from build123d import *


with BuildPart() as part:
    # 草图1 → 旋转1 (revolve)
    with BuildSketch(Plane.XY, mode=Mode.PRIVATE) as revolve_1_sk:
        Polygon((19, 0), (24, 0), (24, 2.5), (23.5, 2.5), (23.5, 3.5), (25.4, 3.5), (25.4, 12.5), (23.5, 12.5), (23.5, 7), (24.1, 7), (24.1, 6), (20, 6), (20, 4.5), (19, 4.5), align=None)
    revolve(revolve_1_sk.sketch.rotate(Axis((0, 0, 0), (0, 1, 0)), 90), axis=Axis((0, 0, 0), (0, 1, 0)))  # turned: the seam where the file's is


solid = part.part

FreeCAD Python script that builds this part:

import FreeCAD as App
import Part
import Sketcher

V = App.Vector
Q = App.Units.Quantity

doc = App.newDocument("Part")
body = doc.addObject("PartDesign::Body", "Body")

sketch1 = body.newObject("Sketcher::SketchObject", "Sketch")
sketch1.AttachmentSupport = (doc.getObject("XY_Plane"), [""])
sketch1.MapMode = "FlatFace"
sketch1.addGeometry([
    Part.LineSegment(V(19, 0, 0), V(24, 0, 0)),
    Part.LineSegment(V(24, 0, 0), V(24, 2.5, 0)),
    Part.LineSegment(V(24, 2.5, 0), V(23.5, 2.5, 0)),
    Part.LineSegment(V(23.5, 2.5, 0), V(23.5, 3.5, 0)),
    Part.LineSegment(V(23.5, 3.5, 0), V(25.4, 3.5, 0)),
    Part.LineSegment(V(25.4, 3.5, 0), V(25.4, 12.5, 0)),
    Part.LineSegment(V(25.4, 12.5, 0), V(23.5, 12.5, 0)),
    Part.LineSegment(V(23.5, 12.5, 0), V(23.5, 7, 0)),
    Part.LineSegment(V(23.5, 7, 0), V(24.1, 7, 0)),
    Part.LineSegment(V(24.1, 7, 0), V(24.1, 6, 0)),
    Part.LineSegment(V(24.1, 6, 0), V(20, 6, 0)),
    Part.LineSegment(V(20, 6, 0), V(20, 4.5, 0)),
    Part.LineSegment(V(20, 4.5, 0), V(19, 4.5, 0)),
    Part.LineSegment(V(19, 4.5, 0), V(19, 0, 0)),
], False)
sketch1.addConstraint([
    Sketcher.Constraint("Coincident", 0, 2, 1, 1),
    Sketcher.Constraint("Coincident", 1, 2, 2, 1),
    Sketcher.Constraint("Coincident", 2, 2, 3, 1),
    Sketcher.Constraint("Coincident", 3, 2, 4, 1),
    Sketcher.Constraint("Coincident", 4, 2, 5, 1),
    Sketcher.Constraint("Coincident", 5, 2, 6, 1),
    Sketcher.Constraint("Coincident", 6, 2, 7, 1),
    Sketcher.Constraint("Coincident", 7, 2, 8, 1),
    Sketcher.Constraint("Coincident", 8, 2, 9, 1),
    Sketcher.Constraint("Coincident", 9, 2, 10, 1),
    Sketcher.Constraint("Coincident", 10, 2, 11, 1),
    Sketcher.Constraint("Coincident", 11, 2, 12, 1),
    Sketcher.Constraint("Coincident", 12, 2, 13, 1),
    Sketcher.Constraint("Coincident", 13, 2, 0, 1),
    Sketcher.Constraint("Horizontal", 0),
    Sketcher.Constraint("Vertical", 1),
    Sketcher.Constraint("Horizontal", 2),
    Sketcher.Constraint("Vertical", 3),
    Sketcher.Constraint("Horizontal", 4),
    Sketcher.Constraint("Vertical", 5),
    Sketcher.Constraint("Horizontal", 6),
    Sketcher.Constraint("Vertical", 7),
    Sketcher.Constraint("Horizontal", 8),
    Sketcher.Constraint("Vertical", 9),
    Sketcher.Constraint("Horizontal", 10),
    Sketcher.Constraint("Vertical", 11),
    Sketcher.Constraint("Horizontal", 12),
    Sketcher.Constraint("Vertical", 13),
    Sketcher.Constraint("PointOnObject", 0, 2, -1),
    Sketcher.Constraint("Vertical", 3, 2, 6, 2),
    Sketcher.Constraint("Equal", 12, 3),
    Sketcher.Constraint("Equal", 3, 9),
    Sketcher.Constraint("DistanceX", 0, 1, 0, 2, Q("5 mm")),
    Sketcher.Constraint("DistanceX", 12, 2, 12, 1, Q("1 mm")),
    Sketcher.Constraint("DistanceY", 5, 1, 5, 2, Q("9 mm")),
    Sketcher.Constraint("DistanceX", 2, 2, 2, 1, Q("0.5 mm")),
    Sketcher.Constraint("DistanceX", 4, 1, 4, 2, Q("1.9 mm")),
    Sketcher.Constraint("DistanceX", 8, 1, 8, 2, Q("0.6 mm")),
    Sketcher.Constraint("DistanceY", 1, 1, 1, 2, Q("2.5 mm")),
    Sketcher.Constraint("DistanceY", 7, 2, 7, 1, Q("5.5 mm")),
    Sketcher.Constraint("DistanceY", 11, 2, 11, 1, Q("1.5 mm")),
    Sketcher.Constraint("DistanceX", -1, 1, 0, 2, Q("24 mm")),
])
revolution = body.newObject("PartDesign::Revolution", "Revolution")
revolution.Profile = sketch1
revolution.ReferenceAxis = (sketch1, ["V_Axis"])
revolution.Angle = 360

doc.recompute()
